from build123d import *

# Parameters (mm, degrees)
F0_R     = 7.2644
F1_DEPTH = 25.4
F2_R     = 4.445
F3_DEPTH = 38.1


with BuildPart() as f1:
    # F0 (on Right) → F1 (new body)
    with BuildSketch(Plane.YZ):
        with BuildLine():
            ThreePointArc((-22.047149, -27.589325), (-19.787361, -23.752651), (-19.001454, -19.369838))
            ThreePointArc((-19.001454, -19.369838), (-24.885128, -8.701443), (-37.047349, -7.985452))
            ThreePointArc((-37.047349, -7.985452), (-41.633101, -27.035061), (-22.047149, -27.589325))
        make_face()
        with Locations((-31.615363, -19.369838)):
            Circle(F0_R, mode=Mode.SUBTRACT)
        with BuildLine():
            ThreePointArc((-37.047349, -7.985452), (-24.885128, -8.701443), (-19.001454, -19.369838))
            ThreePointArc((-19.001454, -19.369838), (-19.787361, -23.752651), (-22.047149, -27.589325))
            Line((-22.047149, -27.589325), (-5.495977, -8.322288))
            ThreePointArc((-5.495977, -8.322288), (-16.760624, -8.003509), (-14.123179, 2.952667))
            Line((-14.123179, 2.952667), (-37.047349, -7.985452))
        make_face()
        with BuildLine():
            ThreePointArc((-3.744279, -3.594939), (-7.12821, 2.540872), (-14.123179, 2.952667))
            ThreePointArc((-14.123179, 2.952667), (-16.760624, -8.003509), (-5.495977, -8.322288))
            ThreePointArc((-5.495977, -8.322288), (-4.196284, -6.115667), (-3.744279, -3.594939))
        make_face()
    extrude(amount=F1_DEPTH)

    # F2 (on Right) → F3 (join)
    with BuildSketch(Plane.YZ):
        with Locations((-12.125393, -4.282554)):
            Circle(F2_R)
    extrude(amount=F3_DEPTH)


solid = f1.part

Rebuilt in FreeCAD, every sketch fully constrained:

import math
import FreeCAD as App
import Part
import Sketcher
Q = App.Units.Quantity

doc = App.newDocument("Part")
params = doc.addObject("Spreadsheet::Sheet", "Params")
for row, (alias, value) in enumerate([
    ("sketch1_length", "1 in"),
    ("sketch1_diameter", "0.572 in"),
    ("pad1_length", "1 in"),
    ("sketch2_diameter", "0.35 in"),
    ("pad2_length", "1.5 in"),
], start=1):
    params.set(f"A{row}", alias)
    params.set(f"B{row}", "=" + value)
    params.setAlias(f"B{row}", alias)

body = doc.addObject("PartDesign::Body", "Body")

# Sketch on YZ plane
sketch1 = body.newObject("Sketcher::SketchObject", "Sketch")
sketch1.AttachmentSupport = (doc.getObject("YZ_Plane"), [""])
sketch1.MapMode = "FlatFace"
sketch1.addGeometry([
    Part.ArcOfCircle(Part.Circle(App.Vector(-32, -19, 0), App.Vector(0, 0, 1), 13), math.radians(116), math.radians(319)),  # 0
    Part.LineSegment(App.Vector(-22, -28, 0), App.Vector(-5, -8, 0)),  # 1
    Part.ArcOfCircle(Part.Circle(App.Vector(-11, -4, 0), App.Vector(0, 0, 1), 7), math.radians(-41), math.radians(0)),  # 2
    Part.ArcOfCircle(Part.Circle(App.Vector(-11, -4, 0), App.Vector(0, 0, 1), 7), math.radians(0), math.radians(116)),  # 3
    Part.LineSegment(App.Vector(-14, 3, 0), App.Vector(-37, -8, 0)),  # 4
    Part.Circle(App.Vector(-32, -19, 0), App.Vector(0, 0, 1), 7),  # 5
], False)
sketch1.addConstraint([
    Sketcher.Constraint("Tangent", 0, 2, 1, 1),
    Sketcher.Constraint("Tangent", 1, 2, 2, 1),
    Sketcher.Constraint("Tangent", 2, 2, 3, 1),
    Sketcher.Constraint("Tangent", 3, 2, 4, 1),
    Sketcher.Constraint("Tangent", 4, 2, 0, 1),
    Sketcher.Constraint("Coincident", 5, 3, 0, 3),
    Sketcher.Constraint("Horizontal", 3, 3, 2, 2),
    Sketcher.Constraint("Equal", 1, 4),
    Sketcher.Constraint("Distance", 1, Q("1 in")),
    Sketcher.Constraint("Diameter", 5, Q("0.572 in")),
    Sketcher.Constraint("Radius", 0, 12.613909),
    Sketcher.Constraint("Radius", 2, 7.254745),
    Sketcher.Constraint("DistanceY", 0, 3, 3, 3, 15.774899),
    Sketcher.Constraint("DistanceX", 3, 3, -1, 1, 10.999032),
    Sketcher.Constraint("DistanceY", 3, 3, -1, 1, 3.594939),
])
sketch1.setExpression("Constraints[8]", "Params.sketch1_length")
sketch1.setExpression("Constraints[9]", "Params.sketch1_diameter")
pad1 = body.newObject("PartDesign::Pad", "Pad")
pad1.Profile = sketch1
pad1.setExpression("Length", "Params.pad1_length")

# Sketch on YZ plane
sketch2 = body.newObject("Sketcher::SketchObject", "Sketch001")
sketch2.AttachmentSupport = (doc.getObject("YZ_Plane"), [""])
sketch2.MapMode = "FlatFace"
sketch2.addGeometry(Part.Circle(App.Vector(-12.1, -4.3, 0), App.Vector(0, 0, 1), 4.4), False)
sketch2.addConstraint([
    Sketcher.Constraint("Diameter", 0, Q("0.35 in")),
    Sketcher.Constraint("DistanceX", 0, 3, -1, 1, 12.125393),
    Sketcher.Constraint("DistanceY", 0, 3, -1, 1, 4.282554),
])
sketch2.setExpression("Constraints[0]", "Params.sketch2_diameter")
pad2 = body.newObject("PartDesign::Pad", "Pad001")
pad2.Profile = sketch2
pad2.setExpression("Length", "Params.pad2_length")

doc.recompute()
